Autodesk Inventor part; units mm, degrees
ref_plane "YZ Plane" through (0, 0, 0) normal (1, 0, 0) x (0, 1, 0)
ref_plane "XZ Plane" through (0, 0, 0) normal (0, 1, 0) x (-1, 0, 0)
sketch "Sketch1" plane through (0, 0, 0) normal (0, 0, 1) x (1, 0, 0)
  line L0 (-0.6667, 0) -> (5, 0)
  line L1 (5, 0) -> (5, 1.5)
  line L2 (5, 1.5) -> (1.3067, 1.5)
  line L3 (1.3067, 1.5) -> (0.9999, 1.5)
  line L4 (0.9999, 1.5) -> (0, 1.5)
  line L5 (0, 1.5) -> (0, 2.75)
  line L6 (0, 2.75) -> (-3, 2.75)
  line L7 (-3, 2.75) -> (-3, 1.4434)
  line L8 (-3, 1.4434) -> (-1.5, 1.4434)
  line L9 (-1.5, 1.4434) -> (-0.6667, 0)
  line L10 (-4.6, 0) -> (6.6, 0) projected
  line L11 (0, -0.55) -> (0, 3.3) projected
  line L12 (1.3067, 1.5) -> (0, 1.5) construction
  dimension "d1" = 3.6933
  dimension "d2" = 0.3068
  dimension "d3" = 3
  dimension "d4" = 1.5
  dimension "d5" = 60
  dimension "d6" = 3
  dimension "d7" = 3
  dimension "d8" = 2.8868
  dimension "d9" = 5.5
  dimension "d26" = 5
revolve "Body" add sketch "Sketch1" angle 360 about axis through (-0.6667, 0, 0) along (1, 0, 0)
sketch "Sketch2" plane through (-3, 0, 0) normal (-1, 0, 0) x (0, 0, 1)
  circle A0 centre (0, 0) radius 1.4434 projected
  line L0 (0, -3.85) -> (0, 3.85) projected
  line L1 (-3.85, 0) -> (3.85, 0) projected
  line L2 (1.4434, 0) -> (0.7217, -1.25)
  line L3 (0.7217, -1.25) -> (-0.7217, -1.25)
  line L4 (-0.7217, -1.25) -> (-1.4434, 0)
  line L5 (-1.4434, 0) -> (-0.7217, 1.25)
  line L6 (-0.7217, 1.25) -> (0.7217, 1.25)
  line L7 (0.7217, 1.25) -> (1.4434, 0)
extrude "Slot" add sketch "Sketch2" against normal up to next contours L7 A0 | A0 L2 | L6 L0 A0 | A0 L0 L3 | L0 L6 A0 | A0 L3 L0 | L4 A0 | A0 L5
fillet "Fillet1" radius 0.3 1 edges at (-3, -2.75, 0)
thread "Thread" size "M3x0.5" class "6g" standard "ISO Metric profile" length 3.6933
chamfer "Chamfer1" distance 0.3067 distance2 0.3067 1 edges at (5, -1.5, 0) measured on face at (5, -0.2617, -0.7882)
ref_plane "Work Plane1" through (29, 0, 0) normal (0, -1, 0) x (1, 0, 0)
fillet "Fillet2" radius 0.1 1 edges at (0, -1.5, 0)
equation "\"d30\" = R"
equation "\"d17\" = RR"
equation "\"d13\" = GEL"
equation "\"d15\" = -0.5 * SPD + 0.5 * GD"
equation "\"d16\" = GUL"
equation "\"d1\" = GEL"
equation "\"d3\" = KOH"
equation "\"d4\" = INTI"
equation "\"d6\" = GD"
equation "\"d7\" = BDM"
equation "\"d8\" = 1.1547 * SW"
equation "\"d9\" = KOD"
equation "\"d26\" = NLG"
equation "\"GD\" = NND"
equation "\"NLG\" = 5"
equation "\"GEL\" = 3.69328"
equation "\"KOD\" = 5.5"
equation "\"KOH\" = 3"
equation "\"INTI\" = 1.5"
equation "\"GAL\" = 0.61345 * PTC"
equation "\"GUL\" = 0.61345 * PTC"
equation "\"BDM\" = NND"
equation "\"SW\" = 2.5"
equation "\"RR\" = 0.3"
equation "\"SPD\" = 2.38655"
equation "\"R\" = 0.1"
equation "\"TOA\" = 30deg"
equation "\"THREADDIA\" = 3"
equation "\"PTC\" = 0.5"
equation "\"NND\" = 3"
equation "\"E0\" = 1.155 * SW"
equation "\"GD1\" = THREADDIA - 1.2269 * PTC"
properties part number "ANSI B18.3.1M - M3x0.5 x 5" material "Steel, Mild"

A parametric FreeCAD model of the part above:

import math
import FreeCAD as App
import Part
import Sketcher

V = App.Vector
Q = App.Units.Quantity


def edges_at(feature, points):
    """Names of the edges that pass closest to the given points."""
    edges = feature.Shape.Edges
    near = lambda p: min(range(len(edges)), key=lambda i: edges[i].distToShape(Part.Vertex(*p))[0])
    return sorted({f"Edge{near(p) + 1}" for p in points})


def add_polygon(sketch, points):
    """Adds a closed chain of lines whose ends are joined by coincident constraints."""
    first, n = sketch.GeometryCount, len(points)
    for a, b in zip(points, points[1:] + points[:1]):
        sketch.addGeometry(Part.LineSegment(App.Vector(*a, 0), App.Vector(*b, 0)), False)
    for i in range(n):
        sketch.addConstraint(Sketcher.Constraint("Coincident", first + i, 2, first + (i + 1) % n, 1))

doc = App.newDocument("Part")
body = doc.addObject("PartDesign::Body", "Body")

# Sketch on XY plane
sketch1 = body.newObject("Sketcher::SketchObject", "Sketch")
sketch1.AttachmentSupport = (doc.getObject("XY_Plane"), [""])
sketch1.MapMode = "FlatFace"
add_polygon(sketch1, [(-1.5, 1.4), (-0.7, 0), (5, 0), (5, 1.5), (0, 1.5), (0, 2.8), (-3, 2.8), (-3, 1.4)])  # lines 0-7
sketch1.addConstraint(Sketcher.Constraint("Horizontal", 1))
sketch1.addConstraint(Sketcher.Constraint("Vertical", 2))
sketch1.addConstraint(Sketcher.Constraint("Horizontal", 3))
sketch1.addConstraint(Sketcher.Constraint("Vertical", 4))
sketch1.addConstraint(Sketcher.Constraint("Horizontal", 5))
sketch1.addConstraint(Sketcher.Constraint("Vertical", 6))
sketch1.addConstraint(Sketcher.Constraint("Horizontal", 7))
sketch1.addConstraint(Sketcher.Constraint("PointOnObject", 0, 2, -1))
sketch1.addConstraint(Sketcher.Constraint("PointOnObject", 3, 2, -2))
sketch1.addConstraint(Sketcher.Constraint("Equal", 7, 2))
sketch1.addConstraint(Sketcher.Constraint("DistanceX", 3, 2, 3, 1, 5.0))
sketch1.addConstraint(Sketcher.Constraint("DistanceX", 5, 2, 5, 1, 3.0))
sketch1.addConstraint(Sketcher.Constraint("DistanceX", 7, 1, 7, 2, 1.5))
sketch1.addConstraint(Sketcher.Constraint("DistanceY", 4, 1, 4, 2, 1.25))
sketch1.addConstraint(Sketcher.Constraint("DistanceX", 1, 1, 1, 2, 5.6667))
sketch1.addConstraint(Sketcher.Constraint("DistanceY", 6, 2, 6, 1, 1.3066))
revolution = body.newObject("PartDesign::Revolution", "Revolution")
revolution.Profile = sketch1
revolution.ReferenceAxis = (sketch1, ["H_Axis"])
revolution.Angle = 360

# Sketch on YZ plane
sketch2 = body.newObject("Sketcher::SketchObject", "Sketch001")
sketch2.AttachmentSupport = (doc.getObject("YZ_Plane"), [""])
sketch2.MapMode = "FlatFace"
sketch2.AttachmentOffset = App.Placement(V(0, 0, -3), App.Rotation())
sketch2.addGeometry(Part.LineSegment(V(1.2, 0.7, 0), V(0, 1.4, 0)), False)
sketch2.addGeometry(Part.ArcOfCircle(Part.Circle(V(0, 0, 0), V(0, 0, 1), 1.4), math.radians(30), math.radians(90)), False)
sketch2.addGeometry(Part.ArcOfCircle(Part.Circle(V(0, 0, 0), V(0, 0, 1), 1.4), math.radians(90), math.radians(150)), False)
sketch2.addGeometry(Part.LineSegment(V(0, 1.4, 0), V(-1.2, 0.7, 0)), False)
sketch2.addGeometry(Part.ArcOfCircle(Part.Circle(V(0, 0, 0), V(0, 0, 1), 1.4), math.radians(-30), math.radians(30)), False)
sketch2.addGeometry(Part.LineSegment(V(1.2, 0.7, 0), V(1.2, -0.7, 0)), False)
sketch2.addGeometry(Part.LineSegment(V(-1.2, 0.7, 0), V(-1.2, -0.7, 0)), False)
sketch2.addGeometry(Part.ArcOfCircle(Part.Circle(V(0, 0, 0), V(0, 0, 1), 1.4), math.radians(150), math.radians(210)), False)
sketch2.addGeometry(Part.LineSegment(V(-1.2, -0.7, 0), V(0, -1.4, 0)), False)
sketch2.addGeometry(Part.ArcOfCircle(Part.Circle(V(0, 0, 0), V(0, 0, 1), 1.4), math.radians(-150), math.radians(-90)), False)
sketch2.addGeometry(Part.ArcOfCircle(Part.Circle(V(0, 0, 0), V(0, 0, 1), 1.4), math.radians(-90), math.radians(-30)), False)
sketch2.addGeometry(Part.LineSegment(V(0, -1.4, 0), V(1.2, -0.7, 0)), False)
sketch2.addConstraint(Sketcher.Constraint("Coincident", 0, 1, 1, 1))
sketch2.addConstraint(Sketcher.Constraint("Coincident", 1, 2, 0, 2))
sketch2.addConstraint(Sketcher.Constraint("Coincident", 2, 1, 3, 1))
sketch2.addConstraint(Sketcher.Constraint("Coincident", 3, 2, 2, 2))
sketch2.addConstraint(Sketcher.Constraint("Coincident", 4, 1, 5, 2))
sketch2.addConstraint(Sketcher.Constraint("Coincident", 5, 1, 4, 2))
sketch2.addConstraint(Sketcher.Constraint("Coincident", 6, 1, 7, 1))
sketch2.addConstraint(Sketcher.Constraint("Coincident", 7, 2, 6, 2))
sketch2.addConstraint(Sketcher.Constraint("Coincident", 8, 1, 9, 1))
sketch2.addConstraint(Sketcher.Constraint("Coincident", 9, 2, 8, 2))
sketch2.addConstraint(Sketcher.Constraint("Coincident", 10, 1, 11, 1))
sketch2.addConstraint(Sketcher.Constraint("Coincident", 11, 2, 10, 2))
sketch2.addConstraint(Sketcher.Constraint("Vertical", 5))
sketch2.addConstraint(Sketcher.Constraint("Vertical", 6))
sketch2.addConstraint(Sketcher.Constraint("Coincident", 1, 3, -1, 1))
sketch2.addConstraint(Sketcher.Constraint("Coincident", 2, 3, -1, 1))
sketch2.addConstraint(Sketcher.Constraint("Coincident", 4, 3, -1, 1))
sketch2.addConstraint(Sketcher.Constraint("Coincident", 7, 3, -1, 1))
sketch2.addConstraint(Sketcher.Constraint("Coincident", 9, 3, -1, 1))
sketch2.addConstraint(Sketcher.Constraint("Coincident", 10, 3, -1, 1))
sketch2.addConstraint(Sketcher.Constraint("Coincident", 2, 1, 1, 2))
sketch2.addConstraint(Sketcher.Constraint("Coincident", 5, 1, 0, 1))
sketch2.addConstraint(Sketcher.Constraint("Coincident", 6, 1, 3, 2))
sketch2.addConstraint(Sketcher.Constraint("Coincident", 8, 1, 7, 2))
sketch2.addConstraint(Sketcher.Constraint("Coincident", 10, 1, 9, 2))
sketch2.addConstraint(Sketcher.Constraint("PointOnObject", 1, 2, -2))
sketch2.addConstraint(Sketcher.Constraint("PointOnObject", 9, 2, -2))
sketch2.addConstraint(Sketcher.Constraint("Parallel", 0, 8))
sketch2.addConstraint(Sketcher.Constraint("Parallel", 3, 11))
sketch2.addConstraint(Sketcher.Constraint("Angle", 0, Q("149.9996 deg")))
sketch2.addConstraint(Sketcher.Constraint("Radius", 1, 1.4434))
pad1 = body.newObject("PartDesign::Pad", "Pad")
pad1.Profile = sketch2
pad1.Type = "UpToFirst"
doc.recompute()

fillet = body.newObject("PartDesign::Fillet", "Fillet")
fillet.Base = (pad1, edges_at(pad1, [(-3, -2.75, 0)]))
fillet.Radius = 0.3
doc.recompute()

chamfer = body.newObject("PartDesign::Chamfer", "Chamfer")
chamfer.Base = (fillet, edges_at(fillet, [(5, -1.5, 0)]))
chamfer.ChamferType = "Two distances"
chamfer.Size = 0.3067
chamfer.Size2 = 0.3067
doc.recompute()

fillet2 = body.newObject("PartDesign::Fillet", "Fillet001")
fillet2.Base = (chamfer, edges_at(chamfer, [(0, -1.5, 0)]))
fillet2.Radius = 0.1

doc.recompute()
